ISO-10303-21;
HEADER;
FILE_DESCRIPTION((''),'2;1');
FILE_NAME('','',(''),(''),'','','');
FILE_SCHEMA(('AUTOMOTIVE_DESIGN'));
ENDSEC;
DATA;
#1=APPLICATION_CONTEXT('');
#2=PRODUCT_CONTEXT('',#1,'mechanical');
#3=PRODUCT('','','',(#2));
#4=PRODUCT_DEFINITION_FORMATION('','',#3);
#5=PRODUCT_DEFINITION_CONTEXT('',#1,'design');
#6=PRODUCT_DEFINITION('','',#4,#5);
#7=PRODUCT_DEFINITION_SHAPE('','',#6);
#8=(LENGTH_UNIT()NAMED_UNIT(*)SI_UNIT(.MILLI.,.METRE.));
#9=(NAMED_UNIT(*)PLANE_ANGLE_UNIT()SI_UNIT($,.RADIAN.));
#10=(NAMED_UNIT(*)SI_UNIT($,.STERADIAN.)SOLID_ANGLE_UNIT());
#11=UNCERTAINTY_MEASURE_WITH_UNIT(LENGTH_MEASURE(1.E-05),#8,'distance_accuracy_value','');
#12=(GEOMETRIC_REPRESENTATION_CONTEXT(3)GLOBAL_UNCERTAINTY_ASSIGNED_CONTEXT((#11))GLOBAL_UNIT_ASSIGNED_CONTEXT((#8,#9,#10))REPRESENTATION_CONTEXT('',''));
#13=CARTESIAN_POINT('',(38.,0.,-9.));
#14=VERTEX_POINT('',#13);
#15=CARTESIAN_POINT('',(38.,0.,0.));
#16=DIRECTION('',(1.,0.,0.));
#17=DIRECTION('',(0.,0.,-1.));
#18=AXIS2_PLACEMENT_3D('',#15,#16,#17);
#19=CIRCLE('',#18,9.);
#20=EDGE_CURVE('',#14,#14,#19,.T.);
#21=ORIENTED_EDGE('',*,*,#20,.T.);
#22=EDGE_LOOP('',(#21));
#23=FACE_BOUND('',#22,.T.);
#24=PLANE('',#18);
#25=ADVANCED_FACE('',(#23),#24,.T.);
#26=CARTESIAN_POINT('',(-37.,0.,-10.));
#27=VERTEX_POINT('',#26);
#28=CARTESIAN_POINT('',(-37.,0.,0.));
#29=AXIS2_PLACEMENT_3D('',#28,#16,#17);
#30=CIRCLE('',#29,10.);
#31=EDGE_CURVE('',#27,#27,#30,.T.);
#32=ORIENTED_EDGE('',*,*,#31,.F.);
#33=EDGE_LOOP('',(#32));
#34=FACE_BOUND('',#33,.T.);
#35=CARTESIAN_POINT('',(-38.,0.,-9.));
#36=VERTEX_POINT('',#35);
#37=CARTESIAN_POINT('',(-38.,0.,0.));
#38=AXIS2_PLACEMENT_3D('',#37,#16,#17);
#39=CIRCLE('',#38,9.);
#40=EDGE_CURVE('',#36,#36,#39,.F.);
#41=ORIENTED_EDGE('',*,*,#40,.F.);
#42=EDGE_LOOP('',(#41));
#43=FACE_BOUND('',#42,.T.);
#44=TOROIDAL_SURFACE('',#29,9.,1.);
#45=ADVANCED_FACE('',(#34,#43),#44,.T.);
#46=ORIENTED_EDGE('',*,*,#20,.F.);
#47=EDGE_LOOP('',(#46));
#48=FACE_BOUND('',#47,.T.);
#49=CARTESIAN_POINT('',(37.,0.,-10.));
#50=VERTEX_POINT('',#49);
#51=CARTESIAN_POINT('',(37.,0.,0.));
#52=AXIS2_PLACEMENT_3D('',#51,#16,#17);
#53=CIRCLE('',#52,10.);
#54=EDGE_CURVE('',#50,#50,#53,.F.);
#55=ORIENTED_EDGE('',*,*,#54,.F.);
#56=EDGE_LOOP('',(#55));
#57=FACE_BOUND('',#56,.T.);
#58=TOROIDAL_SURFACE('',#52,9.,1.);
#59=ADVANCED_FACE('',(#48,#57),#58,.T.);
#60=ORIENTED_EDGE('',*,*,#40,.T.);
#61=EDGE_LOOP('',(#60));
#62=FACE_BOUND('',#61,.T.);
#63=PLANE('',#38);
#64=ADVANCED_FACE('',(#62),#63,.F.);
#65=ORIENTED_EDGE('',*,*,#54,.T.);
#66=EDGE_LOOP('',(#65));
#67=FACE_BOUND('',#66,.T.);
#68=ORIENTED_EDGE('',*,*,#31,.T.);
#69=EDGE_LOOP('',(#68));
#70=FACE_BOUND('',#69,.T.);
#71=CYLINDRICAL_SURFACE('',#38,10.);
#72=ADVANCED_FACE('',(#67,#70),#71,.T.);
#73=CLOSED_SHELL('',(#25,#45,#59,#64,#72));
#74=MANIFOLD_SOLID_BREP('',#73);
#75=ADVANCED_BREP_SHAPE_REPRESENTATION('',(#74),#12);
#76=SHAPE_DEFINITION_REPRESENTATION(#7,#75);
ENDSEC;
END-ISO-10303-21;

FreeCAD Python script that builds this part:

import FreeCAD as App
import Part
import Sketcher

V = App.Vector


def edges_at(feature, points):
    """Names of the edges that pass closest to the given points."""
    edges = feature.Shape.Edges
    near = lambda p: min(range(len(edges)), key=lambda i: edges[i].distToShape(Part.Vertex(*p))[0])
    return sorted({f"Edge{near(p) + 1}" for p in points})

doc = App.newDocument("Part")
body = doc.addObject("PartDesign::Body", "Body")

sketch1 = body.newObject("Sketcher::SketchObject", "Sketch")
sketch1.AttachmentSupport = (doc.getObject("YZ_Plane"), [""])
sketch1.MapMode = "FlatFace"
sketch1.addGeometry(Part.Circle(V(0, 0, 0), V(0, 0, 1), 10), False)
sketch1.addConstraint([
    Sketcher.Constraint("Coincident", 0, 3, -1, 1),
    Sketcher.Constraint("Diameter", 0, 20.0),
])
pad1 = body.newObject("PartDesign::Pad", "Pad")
pad1.Profile = sketch1
pad1.Type = "TwoLengths"
pad1.Length = 38
pad1.Length2 = 38
doc.recompute()

fillet = body.newObject("PartDesign::Fillet", "Fillet")
fillet.Base = (pad1, edges_at(pad1, [(38, 0, 10), (-38, 0, 10)]))
fillet.Radius = 1

doc.recompute()
